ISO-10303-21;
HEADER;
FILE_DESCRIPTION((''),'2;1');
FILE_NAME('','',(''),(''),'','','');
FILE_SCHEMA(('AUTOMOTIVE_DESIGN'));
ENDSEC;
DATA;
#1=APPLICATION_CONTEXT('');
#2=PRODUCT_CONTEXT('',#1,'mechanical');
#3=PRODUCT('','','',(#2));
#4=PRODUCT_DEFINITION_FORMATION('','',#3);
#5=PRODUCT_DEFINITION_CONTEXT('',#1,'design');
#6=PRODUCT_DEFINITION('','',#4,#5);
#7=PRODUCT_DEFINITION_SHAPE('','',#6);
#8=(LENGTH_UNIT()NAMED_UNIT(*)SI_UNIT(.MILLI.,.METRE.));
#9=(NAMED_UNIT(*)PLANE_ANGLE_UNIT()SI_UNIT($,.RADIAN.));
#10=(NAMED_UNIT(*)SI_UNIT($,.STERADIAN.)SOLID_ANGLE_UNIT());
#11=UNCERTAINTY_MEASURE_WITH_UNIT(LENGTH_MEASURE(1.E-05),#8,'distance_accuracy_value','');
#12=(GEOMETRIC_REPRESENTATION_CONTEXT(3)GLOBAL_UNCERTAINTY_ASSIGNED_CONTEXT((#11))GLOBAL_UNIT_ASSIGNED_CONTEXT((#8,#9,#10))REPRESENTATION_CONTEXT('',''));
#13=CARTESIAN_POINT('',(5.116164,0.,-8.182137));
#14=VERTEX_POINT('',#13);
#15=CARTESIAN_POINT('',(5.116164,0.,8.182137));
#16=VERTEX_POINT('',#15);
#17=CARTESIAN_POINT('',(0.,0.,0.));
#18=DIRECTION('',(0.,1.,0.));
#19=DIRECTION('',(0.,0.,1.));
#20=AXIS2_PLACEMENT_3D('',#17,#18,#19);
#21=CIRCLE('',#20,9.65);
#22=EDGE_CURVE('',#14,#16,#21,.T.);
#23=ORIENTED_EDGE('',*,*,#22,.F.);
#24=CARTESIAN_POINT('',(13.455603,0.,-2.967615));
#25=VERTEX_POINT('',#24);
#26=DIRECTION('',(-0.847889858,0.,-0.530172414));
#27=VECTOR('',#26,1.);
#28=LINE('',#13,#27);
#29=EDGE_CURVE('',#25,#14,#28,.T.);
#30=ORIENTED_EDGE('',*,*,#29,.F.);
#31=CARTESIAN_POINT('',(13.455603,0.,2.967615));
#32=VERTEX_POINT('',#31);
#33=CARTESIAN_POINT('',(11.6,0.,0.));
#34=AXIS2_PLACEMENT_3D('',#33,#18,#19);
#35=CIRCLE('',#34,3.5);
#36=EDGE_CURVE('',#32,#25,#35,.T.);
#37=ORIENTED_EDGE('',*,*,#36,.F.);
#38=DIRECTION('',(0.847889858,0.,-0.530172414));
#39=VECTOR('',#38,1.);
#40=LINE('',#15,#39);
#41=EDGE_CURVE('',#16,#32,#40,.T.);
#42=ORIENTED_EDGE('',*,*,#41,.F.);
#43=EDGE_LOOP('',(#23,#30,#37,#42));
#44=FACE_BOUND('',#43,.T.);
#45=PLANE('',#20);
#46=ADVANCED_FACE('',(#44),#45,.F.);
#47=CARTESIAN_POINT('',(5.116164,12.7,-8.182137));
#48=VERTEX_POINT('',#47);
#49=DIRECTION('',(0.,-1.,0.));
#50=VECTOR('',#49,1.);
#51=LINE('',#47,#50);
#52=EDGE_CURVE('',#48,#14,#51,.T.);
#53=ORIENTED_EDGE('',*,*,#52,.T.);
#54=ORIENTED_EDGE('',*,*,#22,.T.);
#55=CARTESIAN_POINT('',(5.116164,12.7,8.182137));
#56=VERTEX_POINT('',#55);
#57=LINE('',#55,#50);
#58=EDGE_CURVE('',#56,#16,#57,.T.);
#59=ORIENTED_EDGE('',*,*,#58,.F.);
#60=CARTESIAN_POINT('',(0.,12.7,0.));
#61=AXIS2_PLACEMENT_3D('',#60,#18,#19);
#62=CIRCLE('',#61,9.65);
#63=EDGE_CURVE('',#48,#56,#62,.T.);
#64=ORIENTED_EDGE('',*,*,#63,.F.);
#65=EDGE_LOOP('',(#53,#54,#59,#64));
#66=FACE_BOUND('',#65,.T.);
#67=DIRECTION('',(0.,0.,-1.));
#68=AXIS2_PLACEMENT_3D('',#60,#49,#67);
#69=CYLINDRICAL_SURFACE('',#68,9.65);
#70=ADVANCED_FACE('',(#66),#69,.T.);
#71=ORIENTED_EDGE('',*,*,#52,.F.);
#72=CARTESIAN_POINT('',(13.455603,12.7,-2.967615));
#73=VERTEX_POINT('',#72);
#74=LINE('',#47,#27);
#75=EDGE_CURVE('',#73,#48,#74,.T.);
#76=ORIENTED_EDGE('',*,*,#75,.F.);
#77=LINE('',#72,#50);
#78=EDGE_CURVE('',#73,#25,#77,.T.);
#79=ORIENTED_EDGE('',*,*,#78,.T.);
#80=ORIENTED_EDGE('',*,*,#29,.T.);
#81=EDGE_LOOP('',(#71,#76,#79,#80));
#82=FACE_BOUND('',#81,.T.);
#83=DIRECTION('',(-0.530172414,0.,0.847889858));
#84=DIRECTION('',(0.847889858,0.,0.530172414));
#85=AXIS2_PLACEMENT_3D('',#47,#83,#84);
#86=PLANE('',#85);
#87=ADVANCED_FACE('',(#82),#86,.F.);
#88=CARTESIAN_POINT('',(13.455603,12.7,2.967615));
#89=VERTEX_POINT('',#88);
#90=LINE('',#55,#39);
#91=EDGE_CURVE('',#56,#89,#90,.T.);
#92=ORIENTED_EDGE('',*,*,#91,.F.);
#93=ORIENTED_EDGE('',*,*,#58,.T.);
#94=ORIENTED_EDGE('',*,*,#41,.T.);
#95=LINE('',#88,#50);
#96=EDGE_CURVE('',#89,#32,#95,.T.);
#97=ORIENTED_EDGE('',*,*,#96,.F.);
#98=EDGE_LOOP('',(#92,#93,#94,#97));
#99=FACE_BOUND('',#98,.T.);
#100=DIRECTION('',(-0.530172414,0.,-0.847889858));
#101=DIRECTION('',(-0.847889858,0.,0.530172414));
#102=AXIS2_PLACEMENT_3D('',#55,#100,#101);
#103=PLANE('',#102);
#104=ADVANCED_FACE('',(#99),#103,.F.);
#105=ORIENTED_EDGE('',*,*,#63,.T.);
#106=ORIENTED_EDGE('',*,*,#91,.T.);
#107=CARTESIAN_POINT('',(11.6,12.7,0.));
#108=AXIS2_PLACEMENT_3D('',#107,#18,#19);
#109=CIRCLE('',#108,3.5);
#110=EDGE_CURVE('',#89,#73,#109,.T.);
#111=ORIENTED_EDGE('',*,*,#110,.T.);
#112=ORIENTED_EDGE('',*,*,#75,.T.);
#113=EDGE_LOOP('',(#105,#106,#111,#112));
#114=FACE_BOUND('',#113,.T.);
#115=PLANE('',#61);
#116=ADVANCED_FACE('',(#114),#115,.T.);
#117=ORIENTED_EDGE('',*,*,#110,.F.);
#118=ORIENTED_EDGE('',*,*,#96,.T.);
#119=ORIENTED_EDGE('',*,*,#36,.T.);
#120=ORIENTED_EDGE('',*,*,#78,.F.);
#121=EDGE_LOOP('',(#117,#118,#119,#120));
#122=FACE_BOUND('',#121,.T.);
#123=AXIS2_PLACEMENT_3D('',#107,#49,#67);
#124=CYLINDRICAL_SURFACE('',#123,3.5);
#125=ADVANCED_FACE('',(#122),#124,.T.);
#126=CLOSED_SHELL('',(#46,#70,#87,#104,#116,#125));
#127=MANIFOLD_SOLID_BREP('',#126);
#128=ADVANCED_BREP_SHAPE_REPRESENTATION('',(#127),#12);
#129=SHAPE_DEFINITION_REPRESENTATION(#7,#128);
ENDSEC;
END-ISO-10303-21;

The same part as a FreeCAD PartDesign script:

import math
import FreeCAD as App
import Part
import Sketcher

doc = App.newDocument("Part")
params = doc.addObject("Spreadsheet::Sheet", "Params")
for row, (alias, value) in enumerate([
    ("sketch1_radius", "3.5 mm"),
    ("sketch1_radius2", "9.65 mm"),
    ("pad1_length", "12.7 mm"),
], start=1):
    params.set(f"A{row}", alias)
    params.set(f"B{row}", "=" + value)
    params.setAlias(f"B{row}", alias)

body = doc.addObject("PartDesign::Body", "Body")

# Sketch on XZ plane
sketch1 = body.newObject("Sketcher::SketchObject", "Sketch")
sketch1.AttachmentSupport = (doc.getObject("XZ_Plane"), [""])
sketch1.MapMode = "FlatFace"
sketch1.addGeometry([
    Part.LineSegment(App.Vector(13.5, -3, 0), App.Vector(5.1, -8.2, 0)),
    Part.ArcOfCircle(Part.Circle(App.Vector(0, 0, 0), App.Vector(0, 0, 1), 9.7), math.radians(58), math.radians(302)),
    Part.LineSegment(App.Vector(5.1, 8.2, 0), App.Vector(13.5, 3, 0)),
    Part.ArcOfCircle(Part.Circle(App.Vector(11.6, 0, 0), App.Vector(0, 0, 1), 3.5), math.radians(-58), math.radians(58)),
], False)
sketch1.addConstraint([
    Sketcher.Constraint("Tangent", 0, 2, 1, 2),
    Sketcher.Constraint("Tangent", 1, 1, 2, 1),
    Sketcher.Constraint("Tangent", 2, 2, 3, 2),
    Sketcher.Constraint("Tangent", 3, 1, 0, 1),
    Sketcher.Constraint("Coincident", 1, 3, -1, 1),
    Sketcher.Constraint("PointOnObject", 3, 3, -1),
    Sketcher.Constraint("Radius", 3, 3.5),
    Sketcher.Constraint("Radius", 1, 9.65),
    Sketcher.Constraint("DistanceX", -1, 1, 3, 3, 11.6),
])
sketch1.setExpression("Constraints[6]", "Params.sketch1_radius")
sketch1.setExpression("Constraints[7]", "Params.sketch1_radius2")
pad1 = body.newObject("PartDesign::Pad", "Pad")
pad1.Profile = sketch1
pad1.setExpression("Length", "Params.pad1_length")
pad1.Reversed = True

doc.recompute()
